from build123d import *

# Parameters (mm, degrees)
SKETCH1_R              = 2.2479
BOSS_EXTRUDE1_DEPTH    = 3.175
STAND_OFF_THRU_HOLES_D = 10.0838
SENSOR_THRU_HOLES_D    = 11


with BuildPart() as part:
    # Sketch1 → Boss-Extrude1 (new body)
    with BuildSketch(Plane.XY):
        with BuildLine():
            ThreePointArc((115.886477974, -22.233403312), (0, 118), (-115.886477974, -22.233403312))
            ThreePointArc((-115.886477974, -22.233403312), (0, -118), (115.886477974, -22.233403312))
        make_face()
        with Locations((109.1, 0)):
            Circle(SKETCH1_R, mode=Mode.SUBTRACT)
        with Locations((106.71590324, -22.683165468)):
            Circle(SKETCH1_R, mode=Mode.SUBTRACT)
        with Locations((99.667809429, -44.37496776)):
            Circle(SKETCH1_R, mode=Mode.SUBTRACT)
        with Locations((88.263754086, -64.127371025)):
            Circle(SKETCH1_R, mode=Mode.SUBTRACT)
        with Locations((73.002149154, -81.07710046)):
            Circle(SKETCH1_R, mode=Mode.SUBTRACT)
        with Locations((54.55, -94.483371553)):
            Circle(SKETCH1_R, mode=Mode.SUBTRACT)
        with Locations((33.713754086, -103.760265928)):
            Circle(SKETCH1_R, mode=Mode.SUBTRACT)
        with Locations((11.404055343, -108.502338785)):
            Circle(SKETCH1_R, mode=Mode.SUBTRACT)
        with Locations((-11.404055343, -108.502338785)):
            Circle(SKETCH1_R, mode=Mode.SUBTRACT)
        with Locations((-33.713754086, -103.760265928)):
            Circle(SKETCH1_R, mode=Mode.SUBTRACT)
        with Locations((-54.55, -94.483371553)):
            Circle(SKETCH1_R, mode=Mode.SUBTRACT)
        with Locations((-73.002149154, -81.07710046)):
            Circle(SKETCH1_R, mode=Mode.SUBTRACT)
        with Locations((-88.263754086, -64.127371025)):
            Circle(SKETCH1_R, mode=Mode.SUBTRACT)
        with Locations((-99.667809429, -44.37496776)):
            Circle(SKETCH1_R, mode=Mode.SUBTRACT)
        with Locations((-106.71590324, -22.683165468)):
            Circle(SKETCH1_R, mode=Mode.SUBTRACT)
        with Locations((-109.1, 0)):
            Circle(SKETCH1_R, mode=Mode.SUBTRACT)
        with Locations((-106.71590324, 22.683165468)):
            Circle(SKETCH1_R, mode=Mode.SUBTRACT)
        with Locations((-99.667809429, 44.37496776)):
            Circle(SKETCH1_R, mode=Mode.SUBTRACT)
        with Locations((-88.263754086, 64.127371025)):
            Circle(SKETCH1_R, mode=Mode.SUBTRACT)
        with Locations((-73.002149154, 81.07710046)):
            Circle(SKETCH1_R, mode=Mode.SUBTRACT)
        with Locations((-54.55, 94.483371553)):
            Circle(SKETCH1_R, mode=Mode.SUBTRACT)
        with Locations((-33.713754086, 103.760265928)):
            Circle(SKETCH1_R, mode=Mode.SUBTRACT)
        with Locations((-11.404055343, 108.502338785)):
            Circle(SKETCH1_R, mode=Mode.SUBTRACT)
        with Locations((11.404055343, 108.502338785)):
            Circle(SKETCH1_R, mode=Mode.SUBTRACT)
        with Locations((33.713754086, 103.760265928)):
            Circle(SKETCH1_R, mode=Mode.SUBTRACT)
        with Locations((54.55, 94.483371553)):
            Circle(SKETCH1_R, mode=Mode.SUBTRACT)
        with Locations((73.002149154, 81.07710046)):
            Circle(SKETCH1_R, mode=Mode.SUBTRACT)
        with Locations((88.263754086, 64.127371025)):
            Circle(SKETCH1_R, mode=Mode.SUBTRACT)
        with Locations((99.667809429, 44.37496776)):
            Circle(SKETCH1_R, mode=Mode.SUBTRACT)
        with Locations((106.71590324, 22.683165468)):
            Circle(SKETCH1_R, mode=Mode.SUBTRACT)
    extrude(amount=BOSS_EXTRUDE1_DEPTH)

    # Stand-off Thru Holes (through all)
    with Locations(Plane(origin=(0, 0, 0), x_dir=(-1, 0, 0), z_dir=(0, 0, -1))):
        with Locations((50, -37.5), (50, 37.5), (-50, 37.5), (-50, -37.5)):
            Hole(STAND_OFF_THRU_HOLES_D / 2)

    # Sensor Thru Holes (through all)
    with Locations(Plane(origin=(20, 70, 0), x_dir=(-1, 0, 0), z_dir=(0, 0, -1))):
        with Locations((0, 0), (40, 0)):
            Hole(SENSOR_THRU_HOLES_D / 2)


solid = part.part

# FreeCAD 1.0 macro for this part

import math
import FreeCAD as App
import Part
import Sketcher
from FreeCAD import Vector
Q = App.Units.Quantity

doc = App.newDocument("Part")
params = doc.addObject("Spreadsheet::Sheet", "Params")
for row, (alias, value) in enumerate([
    ("sketch1_diameter", "0.177 in"),
    ("pad1_length", "0.125 in"),
    ("sketch2_diameter", "0.397 in"),
    ("hole_diameter", "0.397 in"),
    ("hole2_diameter", "11 mm"),
], start=1):
    params.set(f"A{row}", alias)
    params.set(f"B{row}", "=" + value)
    params.setAlias(f"B{row}", alias)

body = doc.addObject("PartDesign::Body", "Body")

# Sketch on XY plane
sketch1 = doc.addObject("Sketcher::SketchObject", "Sketch")
body.addObject(sketch1)
sketch1.AttachmentSupport = (doc.XY_Plane, [""])
sketch1.MapMode = "FlatFace"
sketch1.addGeometry([
    Part.ArcOfCircle(Part.Circle(Vector(0, 0, 0), Vector(0, 0, 1), 118), math.radians(-11), math.radians(191)),  # 0
    Part.ArcOfCircle(Part.Circle(Vector(0, 0, 0), Vector(0, 0, 1), 118), math.radians(-169), math.radians(-11)),  # 1
    Part.Circle(Vector(-88.3, -64.1, 0), Vector(0, 0, 1), 2.2),  # 2
    Part.Circle(Vector(-73, -81.1, 0), Vector(0, 0, 1), 2.2),  # 3
    Part.Circle(Vector(-33.7, -103.8, 0), Vector(0, 0, 1), 2.2),  # 4
    Part.Circle(Vector(-54.5, -94.5, 0), Vector(0, 0, 1), 2.2),  # 5
    Part.Circle(Vector(-11.4, -108.5, 0), Vector(0, 0, 1), 2.2),  # 6
    Part.Circle(Vector(-99.7, -44.4, 0), Vector(0, 0, 1), 2.2),  # 7
    Part.Circle(Vector(-106.7, -22.7, 0), Vector(0, 0, 1), 2.2),  # 8
    Part.Circle(Vector(11.4, -108.5, 0), Vector(0, 0, 1), 2.2),  # 9
    Part.Circle(Vector(33.7, -103.8, 0), Vector(0, 0, 1), 2.2),  # 10
    Part.Circle(Vector(54.5, -94.5, 0), Vector(0, 0, 1), 2.2),  # 11
    Part.Circle(Vector(73, -81.1, 0), Vector(0, 0, 1), 2.2),  # 12
    Part.Circle(Vector(88.3, -64.1, 0), Vector(0, 0, 1), 2.2),  # 13
    Part.Circle(Vector(99.7, -44.4, 0), Vector(0, 0, 1), 2.2),  # 14
    Part.Circle(Vector(106.7, -22.7, 0), Vector(0, 0, 1), 2.2),  # 15
    Part.Circle(Vector(-109.1, 0, 0), Vector(0, 0, 1), 2.2),  # 16
    Part.Circle(Vector(-106.7, 22.7, 0), Vector(0, 0, 1), 2.2),  # 17
    Part.Circle(Vector(-99.7, 44.4, 0), Vector(0, 0, 1), 2.2),  # 18
    Part.Circle(Vector(-88.3, 64.1, 0), Vector(0, 0, 1), 2.2),  # 19
    Part.Circle(Vector(-73, 81.1, 0), Vector(0, 0, 1), 2.2),  # 20
    Part.Circle(Vector(-54.5, 94.5, 0), Vector(0, 0, 1), 2.2),  # 21
    Part.Circle(Vector(-33.7, 103.8, 0), Vector(0, 0, 1), 2.2),  # 22
    Part.Circle(Vector(-11.4, 108.5, 0), Vector(0, 0, 1), 2.2),  # 23
    Part.Circle(Vector(109.1, 0, 0), Vector(0, 0, 1), 2.2),  # 24
    Part.Circle(Vector(106.7, 22.7, 0), Vector(0, 0, 1), 2.2),  # 25
    Part.Circle(Vector(99.7, 44.4, 0), Vector(0, 0, 1), 2.2),  # 26
    Part.Circle(Vector(11.4, 108.5, 0), Vector(0, 0, 1), 2.2),  # 27
    Part.Circle(Vector(54.5, 94.5, 0), Vector(0, 0, 1), 2.2),  # 28
    Part.Circle(Vector(33.7, 103.8, 0), Vector(0, 0, 1), 2.2),  # 29
    Part.Circle(Vector(73, 81.1, 0), Vector(0, 0, 1), 2.2),  # 30
    Part.Circle(Vector(88.3, 64.1, 0), Vector(0, 0, 1), 2.2),  # 31
], False)
sketch1.addConstraint([
    Sketcher.Constraint("Tangent", 0, 1, 1, 2),
    Sketcher.Constraint("Coincident", 1, 1, 0, 2),
    Sketcher.Constraint("Coincident", 0, 3, -1, 1),
    Sketcher.Constraint("Equal", 2, 3),
    Sketcher.Constraint("Equal", 3, 4),
    Sketcher.Constraint("Equal", 4, 5),
    Sketcher.Constraint("Equal", 5, 6),
    Sketcher.Constraint("Equal", 6, 7),
    Sketcher.Constraint("Equal", 7, 8),
    Sketcher.Constraint("Equal", 8, 9),
    Sketcher.Constraint("Equal", 9, 10),
    Sketcher.Constraint("Equal", 10, 11),
    Sketcher.Constraint("Equal", 11, 12),
    Sketcher.Constraint("Equal", 12, 13),
    Sketcher.Constraint("Equal", 13, 14),
    Sketcher.Constraint("Equal", 14, 15),
    Sketcher.Constraint("Equal", 15, 16),
    Sketcher.Constraint("Equal", 16, 17),
    Sketcher.Constraint("Equal", 17, 18),
    Sketcher.Constraint("Equal", 18, 19),
    Sketcher.Constraint("Equal", 19, 20),
    Sketcher.Constraint("Equal", 20, 21),
    Sketcher.Constraint("Equal", 21, 22),
    Sketcher.Constraint("Equal", 22, 23),
    Sketcher.Constraint("Equal", 23, 24),
    Sketcher.Constraint("Equal", 24, 25),
    Sketcher.Constraint("Equal", 25, 26),
    Sketcher.Constraint("Equal", 26, 27),
    Sketcher.Constraint("Equal", 27, 28),
    Sketcher.Constraint("Equal", 28, 29),
    Sketcher.Constraint("Equal", 29, 30),
    Sketcher.Constraint("Equal", 30, 31),
    Sketcher.Constraint("Symmetric", 15, 3, 17, 3, -1, 1),
    Sketcher.Constraint("Symmetric", 14, 3, 18, 3, -1, 1),
    Sketcher.Constraint("Symmetric", 13, 3, 19, 3, -1, 1),
    Sketcher.Constraint("Symmetric", 12, 3, 20, 3, -1, 1),
    Sketcher.Constraint("Symmetric", 11, 3, 21, 3, -1, 1),
    Sketcher.Constraint("Symmetric", 10, 3, 22, 3, -1, 1),
    Sketcher.Constraint("Symmetric", 9, 3, 23, 3, -1, 1),
    Sketcher.Constraint("Symmetric", 16, 3, 24, 3, -1, 1),
    Sketcher.Constraint("Symmetric", 8, 3, 25, 3, -1, 1),
    Sketcher.Constraint("Symmetric", 7, 3, 26, 3, -1, 1),
    Sketcher.Constraint("Symmetric", 6, 3, 27, 3, -1, 1),
    Sketcher.Constraint("Symmetric", 5, 3, 28, 3, -1, 1),
    Sketcher.Constraint("Symmetric", 4, 3, 29, 3, -1, 1),
    Sketcher.Constraint("Symmetric", 3, 3, 30, 3, -1, 1),
    Sketcher.Constraint("Symmetric", 2, 3, 31, 3, -1, 1),
    Sketcher.Constraint("Symmetric", 6, 3, 9, 3, -2),
    Sketcher.Constraint("Symmetric", 4, 3, 10, 3, -2),
    Sketcher.Constraint("Symmetric", 5, 3, 11, 3, -2),
    Sketcher.Constraint("Symmetric", 3, 3, 12, 3, -2),
    Sketcher.Constraint("Symmetric", 2, 3, 13, 3, -2),
    Sketcher.Constraint("Symmetric", 7, 3, 14, 3, -2),
    Sketcher.Constraint("Symmetric", 8, 3, 15, 3, -2),
    Sketcher.Constraint("PointOnObject", 16, 3, -1),
    Sketcher.Constraint("Horizontal", 0, 1, 1, 1),
    Sketcher.Constraint("Diameter", 2, Q("0.177 in")),
    Sketcher.Constraint("Radius", 0, 118.0),
    Sketcher.Constraint("DistanceY", 3, 3, -1, 1, 81.0771),
    Sketcher.Constraint("DistanceX", 5, 3, -1, 1, 54.55),
    Sketcher.Constraint("DistanceX", 16, 3, -1, 1, 109.1),
    Sketcher.Constraint("DistanceX", 2, 3, 4, 3, 54.55),
    Sketcher.Constraint("DistanceY", 5, 3, 2, 3, 30.356001),
    Sketcher.Constraint("DistanceX", 4, 3, 6, 3, 22.309699),
    Sketcher.Constraint("DistanceY", 4, 3, 7, 3, 59.385298),
    Sketcher.Constraint("DistanceY", 2, 3, -1, 1, 64.127371),
    Sketcher.Constraint("DistanceX", 3, 3, -1, 1, 73.002149),
    Sketcher.Constraint("DistanceY", 6, 3, -1, 1, 108.502339),
    Sketcher.Constraint("DistanceX", 7, 3, -1, 1, 99.667809),
    Sketcher.Constraint("DistanceY", 6, 3, 7, 3, 64.127371),
    Sketcher.Constraint("DistanceX", 8, 3, 2, 3, 18.452149),
    Sketcher.Constraint("DistanceX", 6, 3, 9, 3, 22.808111),
    Sketcher.Constraint("DistanceY", 8, 3, 17, 3, 45.366331),
    Sketcher.Constraint("DistanceX", 14, 3, 0, 1, 16.218669),
])
sketch1.setExpression("Constraints[56]", "Params.sketch1_diameter")
pad1 = doc.addObject("PartDesign::Pad", "Pad")
body.addObject(pad1)
pad1.Profile = sketch1
pad1.setExpression("Length", "Params.pad1_length")

# Sketch on XY plane
sketch2 = doc.addObject("Sketcher::SketchObject", "Sketch001")
body.addObject(sketch2)
sketch2.AttachmentSupport = (doc.XY_Plane, [""])
sketch2.MapMode = "FlatFace"
sketch2.addGeometry([
    Part.Circle(Vector(-50, -38, 0), Vector(0, 0, 1), 5),
    Part.Circle(Vector(-50, 38, 0), Vector(0, 0, 1), 5),
    Part.Circle(Vector(50, 38, 0), Vector(0, 0, 1), 5),
    Part.Circle(Vector(50, -38, 0), Vector(0, 0, 1), 5),
], False)
sketch2.addConstraint([
    Sketcher.Constraint("Equal", 0, 1),
    Sketcher.Constraint("Equal", 1, 2),
    Sketcher.Constraint("Equal", 2, 3),
    Sketcher.Constraint("Symmetric", 0, 3, 2, 3, -1, 1),
    Sketcher.Constraint("Symmetric", 1, 3, 3, 3, -1, 1),
    Sketcher.Constraint("Symmetric", 1, 3, 2, 3, -2),
    Sketcher.Constraint("Diameter", 0, Q("0.397 in")),
    Sketcher.Constraint("DistanceX", 0, 3, -1, 1, 50.0),
    Sketcher.Constraint("DistanceY", 0, 3, -1, 1, 37.5),
])
sketch2.setExpression("Constraints[6]", "Params.sketch2_diameter")
doc.recompute()
hole = doc.addObject("PartDesign::Hole", "Hole")
body.addObject(hole)
hole.Profile = sketch2
hole.ThreadType = "None"
hole.setExpression("Diameter", "Params.hole_diameter")
hole.DepthType = "ThroughAll"
hole.Reversed = True

# Sketch on XY plane
sketch3 = doc.addObject("Sketcher::SketchObject", "Sketch002")
body.addObject(sketch3)
sketch3.AttachmentSupport = (doc.XY_Plane, [""])
sketch3.MapMode = "FlatFace"
sketch3.addGeometry([
    Part.Circle(Vector(20, 70, 0), Vector(0, 0, 1), 6),
    Part.Circle(Vector(-20, 70, 0), Vector(0, 0, 1), 6),
], False)
sketch3.addConstraint([
    Sketcher.Constraint("Equal", 0, 1),
    Sketcher.Constraint("Symmetric", 0, 3, 1, 3, -2),
    Sketcher.Constraint("Diameter", 0, 11.0),
    Sketcher.Constraint("DistanceX", -1, 1, 0, 3, 20.0),
    Sketcher.Constraint("DistanceY", -1, 1, 0, 3, 70.0),
])
doc.recompute()
hole2 = doc.addObject("PartDesign::Hole", "Hole001")
body.addObject(hole2)
hole2.Profile = sketch3
hole2.ThreadType = "None"
hole2.setExpression("Diameter", "Params.hole2_diameter")
hole2.DepthType = "ThroughAll"
hole2.Reversed = True

doc.recompute()
